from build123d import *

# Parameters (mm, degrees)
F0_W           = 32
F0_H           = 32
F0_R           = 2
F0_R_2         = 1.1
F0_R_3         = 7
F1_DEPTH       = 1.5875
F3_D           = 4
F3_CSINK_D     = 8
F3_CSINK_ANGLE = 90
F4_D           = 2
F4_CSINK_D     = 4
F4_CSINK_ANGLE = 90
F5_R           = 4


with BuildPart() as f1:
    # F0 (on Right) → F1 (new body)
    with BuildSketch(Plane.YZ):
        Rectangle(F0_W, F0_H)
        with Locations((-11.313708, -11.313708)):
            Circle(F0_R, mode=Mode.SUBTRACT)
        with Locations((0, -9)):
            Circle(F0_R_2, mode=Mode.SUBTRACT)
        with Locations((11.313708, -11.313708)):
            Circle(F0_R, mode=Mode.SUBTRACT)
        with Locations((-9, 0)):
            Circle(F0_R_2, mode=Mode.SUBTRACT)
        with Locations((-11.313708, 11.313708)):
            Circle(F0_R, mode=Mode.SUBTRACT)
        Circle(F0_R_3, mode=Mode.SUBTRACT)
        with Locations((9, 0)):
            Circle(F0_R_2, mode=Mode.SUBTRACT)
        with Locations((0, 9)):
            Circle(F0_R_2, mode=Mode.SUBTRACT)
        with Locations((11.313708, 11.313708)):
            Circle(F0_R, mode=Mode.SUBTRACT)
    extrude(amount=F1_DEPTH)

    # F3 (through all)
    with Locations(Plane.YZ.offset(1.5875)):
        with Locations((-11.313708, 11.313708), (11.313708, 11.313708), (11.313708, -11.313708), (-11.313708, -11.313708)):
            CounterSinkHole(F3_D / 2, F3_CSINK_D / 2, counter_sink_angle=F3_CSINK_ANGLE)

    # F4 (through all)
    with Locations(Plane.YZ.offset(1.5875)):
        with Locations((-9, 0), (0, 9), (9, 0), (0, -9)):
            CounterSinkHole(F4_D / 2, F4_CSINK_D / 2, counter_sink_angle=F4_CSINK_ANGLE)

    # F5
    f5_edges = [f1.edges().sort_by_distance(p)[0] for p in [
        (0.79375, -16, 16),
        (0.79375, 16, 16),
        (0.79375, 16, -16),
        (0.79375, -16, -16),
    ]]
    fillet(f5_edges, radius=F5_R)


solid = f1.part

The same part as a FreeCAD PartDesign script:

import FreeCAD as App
import Part
import Sketcher

V = App.Vector
Q = App.Units.Quantity


def edges_at(feature, points):
    """Names of the edges that pass closest to the given points."""
    edges = feature.Shape.Edges
    near = lambda p: min(range(len(edges)), key=lambda i: edges[i].distToShape(Part.Vertex(*p))[0])
    return sorted({f"Edge{near(p) + 1}" for p in points})

doc = App.newDocument("Part")
body = doc.addObject("PartDesign::Body", "Body")

# Sketch on YZ plane
sketch1 = body.newObject("Sketcher::SketchObject", "Sketch")
sketch1.AttachmentSupport = (doc.getObject("YZ_Plane"), [""])
sketch1.MapMode = "FlatFace"
sketch1.addGeometry([
    Part.LineSegment(V(-16, 16, 0), V(-16, -16, 0)),  # 0
    Part.LineSegment(V(-16, -16, 0), V(16, -16, 0)),  # 1
    Part.LineSegment(V(16, -16, 0), V(16, 16, 0)),  # 2
    Part.LineSegment(V(16, 16, 0), V(-16, 16, 0)),  # 3
    Part.Circle(V(-11.3, -11.3, 0), V(0, 0, 1), 2),  # 4
    Part.Circle(V(0, -9, 0), V(0, 0, 1), 1.1),  # 5
    Part.Circle(V(11.3, -11.3, 0), V(0, 0, 1), 2),  # 6
    Part.Circle(V(-9, 0, 0), V(0, 0, 1), 1.1),  # 7
    Part.Circle(V(-11.3, 11.3, 0), V(0, 0, 1), 2),  # 8
    Part.Circle(V(0, 0, 0), V(0, 0, 1), 7),  # 9
    Part.Circle(V(9, 0, 0), V(0, 0, 1), 1.1),  # 10
    Part.Circle(V(0, 9, 0), V(0, 0, 1), 1.1),  # 11
    Part.Circle(V(11.3, 11.3, 0), V(0, 0, 1), 2),  # 12
], False)
sketch1.addConstraint([
    Sketcher.Constraint("Coincident", 0, 2, 1, 1),
    Sketcher.Constraint("Coincident", 1, 2, 2, 1),
    Sketcher.Constraint("Coincident", 2, 2, 3, 1),
    Sketcher.Constraint("Coincident", 3, 2, 0, 1),
    Sketcher.Constraint("Vertical", 0),
    Sketcher.Constraint("Horizontal", 1),
    Sketcher.Constraint("Vertical", 2),
    Sketcher.Constraint("Horizontal", 3),
    Sketcher.Constraint("Coincident", 9, 3, -1, 1),
    Sketcher.Constraint("Equal", 4, 6),
    Sketcher.Constraint("Equal", 5, 7),
    Sketcher.Constraint("Equal", 6, 8),
    Sketcher.Constraint("Equal", 7, 10),
    Sketcher.Constraint("Equal", 10, 11),
    Sketcher.Constraint("Equal", 8, 12),
    Sketcher.Constraint("Symmetric", 6, 3, 8, 3, -1, 1),
    Sketcher.Constraint("Symmetric", 7, 3, 10, 3, -1, 1),
    Sketcher.Constraint("Symmetric", 5, 3, 11, 3, -1, 1),
    Sketcher.Constraint("Symmetric", 4, 3, 12, 3, -1, 1),
    Sketcher.Constraint("Symmetric", 0, 2, 2, 2, -1, 1),
    Sketcher.Constraint("Symmetric", 4, 3, 6, 3, -2),
    Sketcher.Constraint("PointOnObject", 5, 3, -2),
    Sketcher.Constraint("PointOnObject", 7, 3, -1),
    Sketcher.Constraint("Equal", 3, 0),
    Sketcher.Constraint("Diameter", 4, Q("4 mm")),
    Sketcher.Constraint("Diameter", 9, Q("14 mm")),
    Sketcher.Constraint("Diameter", 5, Q("2.2 mm")),
    Sketcher.Constraint("DistanceX", 1, 1, 1, 2, Q("32 mm")),
    Sketcher.Constraint("DistanceY", 5, 3, -1, 1, Q("9 mm")),
    Sketcher.Constraint("DistanceX", 7, 3, -1, 1, Q("9 mm")),
    Sketcher.Constraint("DistanceY", 4, 3, 5, 3, Q("2.313708 mm")),
    Sketcher.Constraint("DistanceX", 4, 3, 7, 3, Q("2.313708 mm")),
])
pad1 = body.newObject("PartDesign::Pad", "Pad")
pad1.Profile = sketch1
pad1.Length = 1.5875

# Sketch on YZ plane
sketch2 = body.newObject("Sketcher::SketchObject", "Sketch001")
sketch2.AttachmentSupport = (doc.getObject("YZ_Plane"), [""])
sketch2.MapMode = "FlatFace"
sketch2.AttachmentOffset = App.Placement(V(0, 0, 1.5875), App.Rotation())
sketch2.addGeometry([
    Part.Circle(V(-11.3, 11.3, 0), V(0, 0, 1), 2),
    Part.Circle(V(11.3, 11.3, 0), V(0, 0, 1), 2),
    Part.Circle(V(11.3, -11.3, 0), V(0, 0, 1), 2),
    Part.Circle(V(-11.3, -11.3, 0), V(0, 0, 1), 2),
], False)
sketch2.addConstraint([
    Sketcher.Constraint("Equal", 0, 1),
    Sketcher.Constraint("Equal", 1, 2),
    Sketcher.Constraint("Equal", 2, 3),
    Sketcher.Constraint("Symmetric", 0, 3, 2, 3, -1, 1),
    Sketcher.Constraint("Symmetric", 1, 3, 3, 3, -1, 1),
    Sketcher.Constraint("Symmetric", 0, 3, 1, 3, -2),
    Sketcher.Constraint("Diameter", 0, Q("4 mm")),
    Sketcher.Constraint("DistanceX", 0, 3, -1, 1, Q("11.313708 mm")),
    Sketcher.Constraint("DistanceY", -1, 1, 0, 3, Q("11.313708 mm")),
])
doc.recompute()
hole = body.newObject("PartDesign::Hole", "Hole")
hole.Profile = sketch2
hole.ThreadType = "None"
hole.Diameter = 4
hole.DepthType = "ThroughAll"
hole.HoleCutType = "Countersink"
hole.HoleCutDiameter = 8
hole.HoleCutCountersinkAngle = 90

# Sketch on YZ plane
sketch3 = body.newObject("Sketcher::SketchObject", "Sketch002")
sketch3.AttachmentSupport = (doc.getObject("YZ_Plane"), [""])
sketch3.MapMode = "FlatFace"
sketch3.AttachmentOffset = App.Placement(V(0, 0, 1.5875), App.Rotation())
sketch3.addGeometry([
    Part.Circle(V(-9, 0, 0), V(0, 0, 1), 1),
    Part.Circle(V(0, 9, 0), V(0, 0, 1), 1),
    Part.Circle(V(9, 0, 0), V(0, 0, 1), 1),
    Part.Circle(V(0, -9, 0), V(0, 0, 1), 1),
], False)
sketch3.addConstraint([
    Sketcher.Constraint("Equal", 0, 1),
    Sketcher.Constraint("Equal", 1, 2),
    Sketcher.Constraint("Equal", 2, 3),
    Sketcher.Constraint("Symmetric", 0, 3, 2, 3, -1, 1),
    Sketcher.Constraint("Symmetric", 1, 3, 3, 3, -1, 1),
    Sketcher.Constraint("PointOnObject", 0, 3, -1),
    Sketcher.Constraint("PointOnObject", 1, 3, -2),
    Sketcher.Constraint("Diameter", 0, Q("2 mm")),
    Sketcher.Constraint("DistanceX", 0, 3, -1, 1, Q("9 mm")),
    Sketcher.Constraint("DistanceY", -1, 1, 1, 3, Q("9 mm")),
])
doc.recompute()
hole2 = body.newObject("PartDesign::Hole", "Hole001")
hole2.Profile = sketch3
hole2.ThreadType = "None"
hole2.Diameter = 2
hole2.DepthType = "ThroughAll"
hole2.HoleCutType = "Countersink"
hole2.HoleCutDiameter = 4
hole2.HoleCutCountersinkAngle = 90
doc.recompute()

fillet = body.newObject("PartDesign::Fillet", "Fillet")
fillet.Base = (hole2, edges_at(hole2, [
    (0.794, -16, 16),
    (0.794, 16, 16),
    (0.794, 16, -16),
    (0.794, -16, -16),
]))
fillet.Radius = 4

doc.recompute()
